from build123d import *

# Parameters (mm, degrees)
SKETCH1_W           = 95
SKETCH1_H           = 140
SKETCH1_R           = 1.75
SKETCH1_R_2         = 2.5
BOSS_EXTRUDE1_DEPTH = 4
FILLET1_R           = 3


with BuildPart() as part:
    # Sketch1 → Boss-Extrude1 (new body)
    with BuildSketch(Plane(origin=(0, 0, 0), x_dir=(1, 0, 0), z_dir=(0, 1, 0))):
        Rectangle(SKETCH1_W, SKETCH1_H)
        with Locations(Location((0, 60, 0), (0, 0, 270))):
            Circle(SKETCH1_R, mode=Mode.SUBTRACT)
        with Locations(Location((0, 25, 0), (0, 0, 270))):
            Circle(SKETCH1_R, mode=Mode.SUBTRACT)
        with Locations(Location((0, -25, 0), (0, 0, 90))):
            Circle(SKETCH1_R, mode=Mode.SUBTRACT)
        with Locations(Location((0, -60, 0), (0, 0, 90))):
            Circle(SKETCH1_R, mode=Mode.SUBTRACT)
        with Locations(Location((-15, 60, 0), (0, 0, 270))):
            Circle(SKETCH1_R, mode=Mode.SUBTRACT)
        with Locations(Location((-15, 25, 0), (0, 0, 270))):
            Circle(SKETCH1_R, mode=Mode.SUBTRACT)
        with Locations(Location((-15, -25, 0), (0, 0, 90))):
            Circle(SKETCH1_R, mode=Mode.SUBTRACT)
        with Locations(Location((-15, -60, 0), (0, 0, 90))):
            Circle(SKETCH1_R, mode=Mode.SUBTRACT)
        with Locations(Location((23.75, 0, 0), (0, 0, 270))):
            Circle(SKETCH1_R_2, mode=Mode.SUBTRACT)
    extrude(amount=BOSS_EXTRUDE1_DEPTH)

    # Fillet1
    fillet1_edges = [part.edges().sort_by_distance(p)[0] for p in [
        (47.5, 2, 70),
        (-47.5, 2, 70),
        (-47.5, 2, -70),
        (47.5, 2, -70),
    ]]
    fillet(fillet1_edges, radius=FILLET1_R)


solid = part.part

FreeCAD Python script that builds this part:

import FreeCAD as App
import Part
import Sketcher

V = App.Vector
Q = App.Units.Quantity


def edges_at(feature, points):
    """Names of the edges that pass closest to the given points."""
    edges = feature.Shape.Edges
    near = lambda p: min(range(len(edges)), key=lambda i: edges[i].distToShape(Part.Vertex(*p))[0])
    return sorted({f"Edge{near(p) + 1}" for p in points})


def add_polygon(sketch, points):
    """Adds a closed chain of lines whose ends are joined by coincident constraints."""
    first, n = sketch.GeometryCount, len(points)
    for a, b in zip(points, points[1:] + points[:1]):
        sketch.addGeometry(Part.LineSegment(App.Vector(*a, 0), App.Vector(*b, 0)), False)
    for i in range(n):
        sketch.addConstraint(Sketcher.Constraint("Coincident", first + i, 2, first + (i + 1) % n, 1))

doc = App.newDocument("Part")
body = doc.addObject("PartDesign::Body", "Body")

sketch1 = doc.addObject("Sketcher::SketchObject", "Sketch")
body.addObject(sketch1)
sketch1.AttachmentSupport = (doc.XZ_Plane, [""])
sketch1.MapMode = "FlatFace"
add_polygon(sketch1, [(-47.5, -70), (-47.5, 70), (47.5, 70), (47.5, -70)])
sketch1.addGeometry(Part.Circle(V(-15, 60, 0), V(0, 0, 1), 1.8), False)
sketch1.addGeometry(Part.Circle(V(0, 60, 0), V(0, 0, 1), 1.8), False)
sketch1.addGeometry(Part.Circle(V(-15, 25, 0), V(0, 0, 1), 1.8), False)
sketch1.addGeometry(Part.Circle(V(0, 25, 0), V(0, 0, 1), 1.8), False)
sketch1.addGeometry(Part.Circle(V(-15, -25, 0), V(0, 0, 1), 1.8), False)
sketch1.addGeometry(Part.Circle(V(0, -25, 0), V(0, 0, 1), 1.8), False)
sketch1.addGeometry(Part.Circle(V(-15, -60, 0), V(0, 0, 1), 1.8), False)
sketch1.addGeometry(Part.Circle(V(0, -60, 0), V(0, 0, 1), 1.8), False)
sketch1.addGeometry(Part.Circle(V(23.8, 0, 0), V(0, 0, 1), 2.5), False)
sketch1.addConstraint(Sketcher.Constraint("Vertical", 0))
sketch1.addConstraint(Sketcher.Constraint("Horizontal", 1))
sketch1.addConstraint(Sketcher.Constraint("Vertical", 2))
sketch1.addConstraint(Sketcher.Constraint("Horizontal", 3))
sketch1.addConstraint(Sketcher.Constraint("Equal", 4, 5))
sketch1.addConstraint(Sketcher.Constraint("Equal", 5, 6))
sketch1.addConstraint(Sketcher.Constraint("Equal", 6, 7))
sketch1.addConstraint(Sketcher.Constraint("Equal", 7, 8))
sketch1.addConstraint(Sketcher.Constraint("Equal", 8, 9))
sketch1.addConstraint(Sketcher.Constraint("Equal", 9, 10))
sketch1.addConstraint(Sketcher.Constraint("Equal", 10, 11))
sketch1.addConstraint(Sketcher.Constraint("Symmetric", 7, 3, 9, 3, -1, 1))
sketch1.addConstraint(Sketcher.Constraint("Symmetric", 5, 3, 11, 3, -1, 1))
sketch1.addConstraint(Sketcher.Constraint("Symmetric", 0, 2, 2, 2, -1, 1))
sketch1.addConstraint(Sketcher.Constraint("Symmetric", 6, 3, 8, 3, -1))
sketch1.addConstraint(Sketcher.Constraint("Symmetric", 4, 3, 10, 3, -1))
sketch1.addConstraint(Sketcher.Constraint("PointOnObject", 5, 3, -2))
sketch1.addConstraint(Sketcher.Constraint("PointOnObject", 7, 3, -2))
sketch1.addConstraint(Sketcher.Constraint("PointOnObject", 12, 3, -1))
sketch1.addConstraint(Sketcher.Constraint("Horizontal", 4, 3, 5, 3))
sketch1.addConstraint(Sketcher.Constraint("Horizontal", 6, 3, 7, 3))
sketch1.addConstraint(Sketcher.Constraint("Vertical", 4, 3, 6, 3))
sketch1.addConstraint(Sketcher.Constraint("Diameter", 12, Q("5 mm")))
sketch1.addConstraint(Sketcher.Constraint("Diameter", 4, Q("3.5 mm")))
sketch1.addConstraint(Sketcher.Constraint("DistanceX", 1, 1, 1, 2, Q("95 mm")))
sketch1.addConstraint(Sketcher.Constraint("DistanceY", 0, 1, 0, 2, Q("140 mm")))
sketch1.addConstraint(Sketcher.Constraint("DistanceX", 4, 3, -1, 1, Q("15 mm")))
sketch1.addConstraint(Sketcher.Constraint("DistanceY", -1, 1, 4, 3, Q("60 mm")))
sketch1.addConstraint(Sketcher.Constraint("DistanceY", -1, 1, 6, 3, Q("25 mm")))
sketch1.addConstraint(Sketcher.Constraint("DistanceX", -1, 1, 12, 3, Q("23.75 mm")))
pad1 = doc.addObject("PartDesign::Pad", "Pad")
body.addObject(pad1)
pad1.Profile = sketch1
pad1.Length = 4
pad1.Reversed = True
doc.recompute()

fillet = doc.addObject("PartDesign::Fillet", "Fillet")
body.addObject(fillet)
fillet.Base = (pad1, edges_at(pad1, [
    (47.5, 2, 70),
    (-47.5, 2, 70),
    (-47.5, 2, -70),
    (47.5, 2, -70),
]))
fillet.Radius = 3

doc.recompute()
